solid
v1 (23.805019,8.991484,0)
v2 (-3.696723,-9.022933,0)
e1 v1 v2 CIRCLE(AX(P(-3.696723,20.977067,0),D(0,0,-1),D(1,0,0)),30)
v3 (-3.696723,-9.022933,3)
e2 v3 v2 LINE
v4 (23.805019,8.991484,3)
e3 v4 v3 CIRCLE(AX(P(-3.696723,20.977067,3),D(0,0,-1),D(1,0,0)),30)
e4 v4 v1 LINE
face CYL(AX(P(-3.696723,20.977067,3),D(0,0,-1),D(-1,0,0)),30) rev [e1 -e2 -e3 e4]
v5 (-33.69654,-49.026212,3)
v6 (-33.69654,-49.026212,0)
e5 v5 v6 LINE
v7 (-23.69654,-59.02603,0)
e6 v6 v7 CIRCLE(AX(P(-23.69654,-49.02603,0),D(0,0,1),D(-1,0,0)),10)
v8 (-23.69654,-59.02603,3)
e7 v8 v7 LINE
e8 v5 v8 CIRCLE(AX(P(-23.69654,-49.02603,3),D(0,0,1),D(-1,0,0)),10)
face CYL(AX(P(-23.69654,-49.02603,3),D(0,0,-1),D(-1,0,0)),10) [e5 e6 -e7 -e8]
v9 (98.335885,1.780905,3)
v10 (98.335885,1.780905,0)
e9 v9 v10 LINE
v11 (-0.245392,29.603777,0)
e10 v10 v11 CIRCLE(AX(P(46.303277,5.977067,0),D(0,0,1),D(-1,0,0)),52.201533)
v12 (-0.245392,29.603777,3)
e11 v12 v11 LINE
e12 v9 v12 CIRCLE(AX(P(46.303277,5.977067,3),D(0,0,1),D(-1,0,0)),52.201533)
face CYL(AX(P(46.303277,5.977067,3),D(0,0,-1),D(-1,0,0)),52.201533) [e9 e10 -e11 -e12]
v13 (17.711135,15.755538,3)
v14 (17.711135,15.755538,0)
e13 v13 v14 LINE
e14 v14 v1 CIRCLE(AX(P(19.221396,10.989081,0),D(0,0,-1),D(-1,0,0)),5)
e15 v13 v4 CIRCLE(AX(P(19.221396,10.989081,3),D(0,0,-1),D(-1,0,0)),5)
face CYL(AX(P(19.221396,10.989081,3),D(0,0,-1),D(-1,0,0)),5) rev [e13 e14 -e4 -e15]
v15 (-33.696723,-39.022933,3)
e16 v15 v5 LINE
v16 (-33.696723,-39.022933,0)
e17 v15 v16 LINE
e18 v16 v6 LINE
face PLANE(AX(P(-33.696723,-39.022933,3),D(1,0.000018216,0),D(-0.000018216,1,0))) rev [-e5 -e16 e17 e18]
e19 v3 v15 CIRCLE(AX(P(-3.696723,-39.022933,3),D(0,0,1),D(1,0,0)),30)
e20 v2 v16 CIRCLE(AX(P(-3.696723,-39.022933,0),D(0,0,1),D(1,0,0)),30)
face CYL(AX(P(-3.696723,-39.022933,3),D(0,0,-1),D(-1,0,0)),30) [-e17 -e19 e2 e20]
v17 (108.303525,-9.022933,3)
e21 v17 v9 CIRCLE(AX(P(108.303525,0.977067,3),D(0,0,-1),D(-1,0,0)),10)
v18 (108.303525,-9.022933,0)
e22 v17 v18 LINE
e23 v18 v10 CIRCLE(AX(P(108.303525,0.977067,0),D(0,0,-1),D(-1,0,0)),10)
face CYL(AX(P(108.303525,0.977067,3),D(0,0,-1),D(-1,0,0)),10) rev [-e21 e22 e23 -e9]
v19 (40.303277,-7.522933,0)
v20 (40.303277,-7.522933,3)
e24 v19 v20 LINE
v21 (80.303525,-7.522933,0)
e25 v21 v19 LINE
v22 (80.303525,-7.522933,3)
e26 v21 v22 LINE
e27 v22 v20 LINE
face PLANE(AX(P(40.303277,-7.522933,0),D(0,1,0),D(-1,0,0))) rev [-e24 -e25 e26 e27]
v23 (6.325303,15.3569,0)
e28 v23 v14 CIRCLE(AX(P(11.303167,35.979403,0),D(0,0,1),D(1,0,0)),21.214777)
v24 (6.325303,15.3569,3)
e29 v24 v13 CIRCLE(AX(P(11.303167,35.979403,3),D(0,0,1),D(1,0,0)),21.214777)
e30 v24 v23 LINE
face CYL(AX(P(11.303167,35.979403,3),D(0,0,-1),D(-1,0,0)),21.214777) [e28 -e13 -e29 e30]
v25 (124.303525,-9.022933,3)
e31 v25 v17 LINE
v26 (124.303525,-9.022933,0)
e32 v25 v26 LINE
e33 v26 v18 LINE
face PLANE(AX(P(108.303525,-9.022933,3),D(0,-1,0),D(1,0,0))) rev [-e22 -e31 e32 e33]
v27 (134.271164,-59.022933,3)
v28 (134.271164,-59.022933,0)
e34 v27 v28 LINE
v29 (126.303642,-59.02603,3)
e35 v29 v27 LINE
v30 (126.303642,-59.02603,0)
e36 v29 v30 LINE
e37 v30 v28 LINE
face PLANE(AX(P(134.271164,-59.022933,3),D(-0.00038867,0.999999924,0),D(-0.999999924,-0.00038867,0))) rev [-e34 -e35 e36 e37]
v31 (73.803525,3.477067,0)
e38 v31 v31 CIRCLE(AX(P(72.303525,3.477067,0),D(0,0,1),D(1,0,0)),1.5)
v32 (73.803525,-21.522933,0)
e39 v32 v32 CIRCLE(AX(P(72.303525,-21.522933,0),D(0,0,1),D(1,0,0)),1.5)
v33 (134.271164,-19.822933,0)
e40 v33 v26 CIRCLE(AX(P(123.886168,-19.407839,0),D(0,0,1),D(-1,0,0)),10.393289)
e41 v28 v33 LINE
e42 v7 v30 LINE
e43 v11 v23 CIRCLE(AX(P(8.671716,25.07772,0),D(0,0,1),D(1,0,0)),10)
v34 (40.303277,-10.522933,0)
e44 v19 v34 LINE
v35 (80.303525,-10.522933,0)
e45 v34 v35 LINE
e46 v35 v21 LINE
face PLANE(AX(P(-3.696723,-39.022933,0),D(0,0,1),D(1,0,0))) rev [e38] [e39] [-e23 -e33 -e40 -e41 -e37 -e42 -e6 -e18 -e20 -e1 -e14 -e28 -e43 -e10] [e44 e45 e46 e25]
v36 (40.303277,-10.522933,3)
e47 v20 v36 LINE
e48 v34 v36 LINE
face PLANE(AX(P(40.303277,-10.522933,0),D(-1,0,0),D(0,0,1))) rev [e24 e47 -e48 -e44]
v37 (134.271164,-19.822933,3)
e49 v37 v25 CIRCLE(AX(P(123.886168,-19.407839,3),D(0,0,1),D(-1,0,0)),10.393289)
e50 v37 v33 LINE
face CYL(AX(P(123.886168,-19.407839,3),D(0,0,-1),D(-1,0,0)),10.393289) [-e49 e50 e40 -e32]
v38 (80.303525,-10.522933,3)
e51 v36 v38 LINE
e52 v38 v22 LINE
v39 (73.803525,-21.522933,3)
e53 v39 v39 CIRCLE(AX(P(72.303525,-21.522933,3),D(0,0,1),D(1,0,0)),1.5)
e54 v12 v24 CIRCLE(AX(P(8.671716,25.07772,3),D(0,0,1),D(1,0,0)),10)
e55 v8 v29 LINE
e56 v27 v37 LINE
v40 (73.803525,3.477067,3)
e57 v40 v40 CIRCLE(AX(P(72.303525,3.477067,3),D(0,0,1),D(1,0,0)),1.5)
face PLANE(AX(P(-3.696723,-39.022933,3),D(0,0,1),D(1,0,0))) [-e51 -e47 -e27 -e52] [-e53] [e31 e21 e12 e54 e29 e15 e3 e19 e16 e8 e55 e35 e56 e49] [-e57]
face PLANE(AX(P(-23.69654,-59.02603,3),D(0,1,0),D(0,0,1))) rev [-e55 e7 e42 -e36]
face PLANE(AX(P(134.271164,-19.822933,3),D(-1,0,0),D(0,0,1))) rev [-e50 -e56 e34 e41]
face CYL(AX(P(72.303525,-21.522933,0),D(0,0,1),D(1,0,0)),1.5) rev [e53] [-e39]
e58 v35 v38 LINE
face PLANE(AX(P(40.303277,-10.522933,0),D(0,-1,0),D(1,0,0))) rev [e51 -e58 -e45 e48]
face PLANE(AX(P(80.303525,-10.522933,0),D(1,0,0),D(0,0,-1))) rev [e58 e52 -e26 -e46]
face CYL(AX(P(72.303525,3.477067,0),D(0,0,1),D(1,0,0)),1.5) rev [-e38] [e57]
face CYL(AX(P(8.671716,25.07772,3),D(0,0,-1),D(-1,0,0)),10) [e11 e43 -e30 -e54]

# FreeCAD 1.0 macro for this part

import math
import FreeCAD as App
import Part
import Sketcher
Q = App.Units.Quantity


def add_polygon(sketch, points):
    """Adds a closed chain of lines whose ends are joined by coincident constraints."""
    first, n = sketch.GeometryCount, len(points)
    for a, b in zip(points, points[1:] + points[:1]):
        sketch.addGeometry(Part.LineSegment(App.Vector(*a, 0), App.Vector(*b, 0)), False)
    for i in range(n):
        sketch.addConstraint(Sketcher.Constraint("Coincident", first + i, 2, first + (i + 1) % n, 1))

doc = App.newDocument("Part")
params = doc.addObject("Spreadsheet::Sheet", "Params")
for row, (alias, value) in enumerate([
    ("sketch1_radius", "10 mm"),
    ("sketch1_radius2", "5 mm"),
    ("sketch1_radius3", "30 mm"),
    ("sketch1_width", "16 mm"),
    ("sketch1_height", "39.2 mm"),
    ("pad1_length", "3 mm"),
    ("sketch2_height", "3 mm"),
    ("sketch3_diameter", "3 mm"),
], start=1):
    params.set(f"A{row}", alias)
    params.set(f"B{row}", "=" + value)
    params.setAlias(f"B{row}", alias)

body = doc.addObject("PartDesign::Body", "Body")

sketch1 = doc.addObject("Sketcher::SketchObject", "Sketch")
body.addObject(sketch1)
sketch1.AttachmentSupport = (doc.XY_Plane, [""])
sketch1.MapMode = "FlatFace"
sketch1.addGeometry([
    Part.LineSegment(App.Vector(-24, -59, 0), App.Vector(126, -59, 0)),
    Part.LineSegment(App.Vector(126, -59, 0), App.Vector(134, -59, 0)),
    Part.LineSegment(App.Vector(134, -59, 0), App.Vector(134, -20, 0)),
    Part.ArcOfCircle(Part.Circle(App.Vector(124, -19, 0), App.Vector(0, 0, 1), 10), math.radians(-2), math.radians(88)),
    Part.LineSegment(App.Vector(124, -9, 0), App.Vector(108, -9, 0)),
    Part.ArcOfCircle(Part.Circle(App.Vector(108, 1, 0), App.Vector(0, 0, 1), 10), math.radians(175), math.radians(270)),
    Part.ArcOfCircle(Part.Circle(App.Vector(46, 6, 0), App.Vector(0, 0, 1), 52), math.radians(-5), math.radians(153)),
    Part.ArcOfCircle(Part.Circle(App.Vector(9, 25, 0), App.Vector(0, 0, 1), 10), math.radians(153), math.radians(256)),
    Part.ArcOfCircle(Part.Circle(App.Vector(11, 36, 0), App.Vector(0, 0, 1), 21), math.radians(-104), math.radians(-72)),
    Part.ArcOfCircle(Part.Circle(App.Vector(19, 11, 0), App.Vector(0, 0, 1), 5), math.radians(-24), math.radians(108)),
    Part.ArcOfCircle(Part.Circle(App.Vector(-4, 21, 0), App.Vector(0, 0, 1), 30), math.radians(-90), math.radians(-24)),
    Part.ArcOfCircle(Part.Circle(App.Vector(-4, -39, 0), App.Vector(0, 0, 1), 30), math.radians(90), math.radians(180)),
    Part.LineSegment(App.Vector(-34, -39, 0), App.Vector(-34, -49, 0)),
    Part.ArcOfCircle(Part.Circle(App.Vector(-24, -49, 0), App.Vector(0, 0, 1), 10), math.radians(-180), math.radians(-90)),
], False)
sketch1.addConstraint([
    Sketcher.Constraint("Coincident", 0, 2, 1, 1),
    Sketcher.Constraint("Coincident", 1, 2, 2, 1),
    Sketcher.Constraint("Coincident", 2, 2, 3, 1),
    Sketcher.Constraint("Coincident", 3, 2, 4, 1),
    Sketcher.Constraint("Tangent", 4, 2, 5, 2),
    Sketcher.Constraint("Tangent", 5, 1, 6, 1),
    Sketcher.Constraint("Tangent", 6, 2, 7, 1),
    Sketcher.Constraint("Tangent", 7, 2, 8, 1),
    Sketcher.Constraint("Tangent", 8, 2, 9, 2),
    Sketcher.Constraint("Tangent", 9, 1, 10, 2),
    Sketcher.Constraint("Tangent", 10, 1, 11, 1),
    Sketcher.Constraint("Coincident", 11, 2, 12, 1),
    Sketcher.Constraint("Tangent", 12, 2, 13, 1),
    Sketcher.Constraint("Tangent", 13, 2, 0, 1),
    Sketcher.Constraint("Horizontal", 0),
    Sketcher.Constraint("Vertical", 2),
    Sketcher.Constraint("Horizontal", 4),
    Sketcher.Constraint("Equal", 5, 7),
    Sketcher.Constraint("Equal", 10, 11),
    Sketcher.Constraint("Equal", 7, 13),
    Sketcher.Constraint("Horizontal", 4, 2, 10, 1),
    Sketcher.Constraint("Vertical", 10, 3, 11, 3),
    Sketcher.Constraint("Radius", 5, Q("10 mm")),
    Sketcher.Constraint("Radius", 9, Q("5 mm")),
    Sketcher.Constraint("Radius", 10, Q("30 mm")),
    Sketcher.Constraint("DistanceX", 4, 2, 4, 1, Q("16 mm")),
    Sketcher.Constraint("DistanceY", 2, 1, 2, 2, Q("39.2 mm")),
    Sketcher.Constraint("DistanceY", 5, 3, 6, 3, Q("5 mm")),
    Sketcher.Constraint("DistanceX", 10, 3, 6, 3, Q("50 mm")),
    Sketcher.Constraint("DistanceY", 1, 2, 5, 3, Q("60 mm")),
    Sketcher.Constraint("DistanceY", 11, 2, 10, 1, Q("30 mm")),
    Sketcher.Constraint("Radius", 3, Q("10.393289 mm")),
    Sketcher.Constraint("Radius", 6, Q("52.201533 mm")),
    Sketcher.Constraint("Radius", 8, Q("21.214777 mm")),
    Sketcher.Constraint("DistanceX", 8, 3, 3, 3, Q("112.583002 mm")),
    Sketcher.Constraint("DistanceY", -1, 1, 7, 2, Q("15.3569 mm")),
    Sketcher.Constraint("Distance", 12, Q("10.003279 mm")),
    Sketcher.Constraint("DistanceX", 0, 1, 0, 2, Q("150.000182 mm")),
    Sketcher.Constraint("DistanceX", -1, 1, 3, 3, Q("123.886168 mm")),
    Sketcher.Constraint("DistanceY", 3, 3, -1, 1, Q("19.407839 mm")),
    Sketcher.Constraint("DistanceY", -1, 1, 7, 3, Q("25.07772 mm")),
    Sketcher.Constraint("DistanceX", 13, 3, -1, 1, Q("23.69654 mm")),
])
sketch1.setExpression("Constraints[22]", "Params.sketch1_radius")
sketch1.setExpression("Constraints[23]", "Params.sketch1_radius2")
sketch1.setExpression("Constraints[24]", "Params.sketch1_radius3")
sketch1.setExpression("Constraints[25]", "Params.sketch1_width")
sketch1.setExpression("Constraints[26]", "Params.sketch1_height")
pad1 = doc.addObject("PartDesign::Pad", "Pad")
body.addObject(pad1)
pad1.Profile = sketch1
pad1.setExpression("Length", "Params.pad1_length")

sketch2 = doc.addObject("Sketcher::SketchObject", "Sketch001")
body.addObject(sketch2)
sketch2.AttachmentSupport = (doc.XY_Plane, [""])
sketch2.MapMode = "FlatFace"
sketch2.AttachmentOffset = App.Placement(App.Vector(0, 0, 3), App.Rotation())
add_polygon(sketch2, [(40.3, -7.5), (40.3, -10.5), (80.3, -10.5), (80.3, -7.5)])
sketch2.addConstraint([
    Sketcher.Constraint("Vertical", 0),
    Sketcher.Constraint("Horizontal", 1),
    Sketcher.Constraint("Vertical", 2),
    Sketcher.Constraint("Horizontal", 3),
    Sketcher.Constraint("DistanceY", 0, 2, 0, 1, Q("3 mm")),
    Sketcher.Constraint("DistanceX", 1, 1, 1, 2, Q("40.000247 mm")),
    Sketcher.Constraint("DistanceX", -1, 1, 0, 2, Q("40.303277 mm")),
    Sketcher.Constraint("DistanceY", 0, 2, -1, 1, Q("10.522933 mm")),
])
sketch2.setExpression("Constraints[8]", "Params.sketch2_height")
pocket1 = doc.addObject("PartDesign::Pocket", "Pocket")
body.addObject(pocket1)
pocket1.Profile = sketch2
pocket1.Type = "ThroughAll"

sketch3 = doc.addObject("Sketcher::SketchObject", "Sketch002")
body.addObject(sketch3)
sketch3.AttachmentSupport = (doc.XY_Plane, [""])
sketch3.MapMode = "FlatFace"
sketch3.AttachmentOffset = App.Placement(App.Vector(0, 0, 3), App.Rotation())
sketch3.addGeometry([
    Part.Circle(App.Vector(72.3, 3.5, 0), App.Vector(0, 0, 1), 1.5),
    Part.Circle(App.Vector(72.3, -21.5, 0), App.Vector(0, 0, 1), 1.5),
], False)
sketch3.addConstraint([
    Sketcher.Constraint("Equal", 0, 1),
    Sketcher.Constraint("Vertical", 0, 3, 1, 3),
    Sketcher.Constraint("Diameter", 0, Q("3 mm")),
    Sketcher.Constraint("DistanceY", 1, 3, 0, 3, Q("25 mm")),
    Sketcher.Constraint("DistanceX", -1, 1, 0, 3, Q("72.303525 mm")),
    Sketcher.Constraint("DistanceY", -1, 1, 0, 3, Q("3.477067 mm")),
])
sketch3.setExpression("Constraints[2]", "Params.sketch3_diameter")
pocket2 = doc.addObject("PartDesign::Pocket", "Pocket001")
body.addObject(pocket2)
pocket2.Profile = sketch3
pocket2.Type = "ThroughAll"

doc.recompute()
